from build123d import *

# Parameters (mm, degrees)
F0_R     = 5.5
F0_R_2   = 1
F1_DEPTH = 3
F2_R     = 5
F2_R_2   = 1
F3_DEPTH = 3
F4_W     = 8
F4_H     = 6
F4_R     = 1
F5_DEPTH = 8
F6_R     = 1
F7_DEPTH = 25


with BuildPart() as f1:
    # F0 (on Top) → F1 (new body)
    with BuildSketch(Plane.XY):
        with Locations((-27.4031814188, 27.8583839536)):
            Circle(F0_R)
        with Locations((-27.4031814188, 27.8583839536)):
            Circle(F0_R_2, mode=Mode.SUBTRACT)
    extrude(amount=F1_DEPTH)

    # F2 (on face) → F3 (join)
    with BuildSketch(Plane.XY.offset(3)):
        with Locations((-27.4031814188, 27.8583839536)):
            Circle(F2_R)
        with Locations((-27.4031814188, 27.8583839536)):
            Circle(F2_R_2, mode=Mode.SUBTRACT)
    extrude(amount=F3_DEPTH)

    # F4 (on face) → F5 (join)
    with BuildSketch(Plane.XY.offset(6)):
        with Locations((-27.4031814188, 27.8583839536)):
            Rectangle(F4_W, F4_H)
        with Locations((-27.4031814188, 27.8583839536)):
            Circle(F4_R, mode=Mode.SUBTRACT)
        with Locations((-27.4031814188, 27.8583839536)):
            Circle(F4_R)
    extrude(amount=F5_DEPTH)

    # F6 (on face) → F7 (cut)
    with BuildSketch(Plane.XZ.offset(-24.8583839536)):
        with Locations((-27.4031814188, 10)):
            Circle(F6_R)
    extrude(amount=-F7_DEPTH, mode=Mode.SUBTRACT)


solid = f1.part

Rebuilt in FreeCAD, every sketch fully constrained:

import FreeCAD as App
import Part
import Sketcher

doc = App.newDocument("Part")
body = doc.addObject("PartDesign::Body", "Body")

sketch1 = body.newObject("Sketcher::SketchObject", "Sketch")
sketch1.AttachmentSupport = (doc.getObject("XY_Plane"), [""])
sketch1.MapMode = "FlatFace"
sketch1.addGeometry(Part.Circle(App.Vector(-27.4, 27.9, 0), App.Vector(0, 0, 1), 5.5), False)
sketch1.addGeometry(Part.Circle(App.Vector(-27.4, 27.9, 0), App.Vector(0, 0, 1), 1), False)
sketch1.addConstraint(Sketcher.Constraint("Coincident", 1, 3, 0, 3))
sketch1.addConstraint(Sketcher.Constraint("Diameter", 0, 11.0))
sketch1.addConstraint(Sketcher.Constraint("Diameter", 1, 2.0))
sketch1.addConstraint(Sketcher.Constraint("DistanceX", 0, 3, -1, 1, 27.403181))
sketch1.addConstraint(Sketcher.Constraint("DistanceY", -1, 1, 0, 3, 27.858384))
pad1 = body.newObject("PartDesign::Pad", "Pad")
pad1.Profile = sketch1
pad1.Length = 3

sketch2 = body.newObject("Sketcher::SketchObject", "Sketch001")
sketch2.AttachmentSupport = (doc.getObject("XY_Plane"), [""])
sketch2.MapMode = "FlatFace"
sketch2.AttachmentOffset = App.Placement(App.Vector(0, 0, 3), App.Rotation())
sketch2.addGeometry(Part.Circle(App.Vector(-27.4, 27.9, 0), App.Vector(0, 0, 1), 5), False)
sketch2.addGeometry(Part.Circle(App.Vector(-27.4, 27.9, 0), App.Vector(0, 0, 1), 1), False)
sketch2.addConstraint(Sketcher.Constraint("Coincident", 1, 3, 0, 3))
sketch2.addConstraint(Sketcher.Constraint("Diameter", 0, 10.0))
sketch2.addConstraint(Sketcher.Constraint("Diameter", 1, 2.0))
sketch2.addConstraint(Sketcher.Constraint("DistanceX", 0, 3, -1, 1, 27.403181))
sketch2.addConstraint(Sketcher.Constraint("DistanceY", -1, 1, 0, 3, 27.858384))
pad2 = body.newObject("PartDesign::Pad", "Pad001")
pad2.Profile = sketch2
pad2.Length = 3

sketch3 = body.newObject("Sketcher::SketchObject", "Sketch002")
sketch3.AttachmentSupport = (doc.getObject("XY_Plane"), [""])
sketch3.MapMode = "FlatFace"
sketch3.AttachmentOffset = App.Placement(App.Vector(0, 0, 6), App.Rotation())
sketch3.addGeometry(Part.LineSegment(App.Vector(-31, 31, 0), App.Vector(-31, 25, 0)), False)
sketch3.addGeometry(Part.LineSegment(App.Vector(-31, 25, 0), App.Vector(-23, 25, 0)), False)
sketch3.addGeometry(Part.LineSegment(App.Vector(-23, 25, 0), App.Vector(-23, 31, 0)), False)
sketch3.addGeometry(Part.LineSegment(App.Vector(-23, 31, 0), App.Vector(-31, 31, 0)), False)
sketch3.addConstraint(Sketcher.Constraint("Coincident", 0, 2, 1, 1))
sketch3.addConstraint(Sketcher.Constraint("Coincident", 1, 2, 2, 1))
sketch3.addConstraint(Sketcher.Constraint("Coincident", 2, 2, 3, 1))
sketch3.addConstraint(Sketcher.Constraint("Coincident", 3, 2, 0, 1))
sketch3.addConstraint(Sketcher.Constraint("Vertical", 0))
sketch3.addConstraint(Sketcher.Constraint("Horizontal", 1))
sketch3.addConstraint(Sketcher.Constraint("Vertical", 2))
sketch3.addConstraint(Sketcher.Constraint("Horizontal", 3))
sketch3.addConstraint(Sketcher.Constraint("DistanceX", 1, 1, 1, 2, 8.0))
sketch3.addConstraint(Sketcher.Constraint("DistanceY", 0, 2, 0, 1, 6.0))
sketch3.addConstraint(Sketcher.Constraint("DistanceX", 0, 2, -1, 1, 31.403181))
sketch3.addConstraint(Sketcher.Constraint("DistanceY", -1, 1, 0, 2, 24.858384))
pad3 = body.newObject("PartDesign::Pad", "Pad002")
pad3.Profile = sketch3
pad3.Length = 8

sketch4 = body.newObject("Sketcher::SketchObject", "Sketch003")
sketch4.AttachmentSupport = (doc.getObject("XZ_Plane"), [""])
sketch4.MapMode = "FlatFace"
sketch4.AttachmentOffset = App.Placement(App.Vector(0, 0, -24.858384), App.Rotation())
sketch4.addGeometry(Part.Circle(App.Vector(-27.4, 10, 0), App.Vector(0, 0, 1), 1), False)
sketch4.addConstraint(Sketcher.Constraint("Diameter", 0, 2.0))
sketch4.addConstraint(Sketcher.Constraint("DistanceY", -1, 1, 0, 3, 10.0))
sketch4.addConstraint(Sketcher.Constraint("DistanceX", 0, 3, -1, 1, 27.403181))
pocket1 = body.newObject("PartDesign::Pocket", "Pocket")
pocket1.Profile = sketch4
pocket1.Length = 25

doc.recompute()
